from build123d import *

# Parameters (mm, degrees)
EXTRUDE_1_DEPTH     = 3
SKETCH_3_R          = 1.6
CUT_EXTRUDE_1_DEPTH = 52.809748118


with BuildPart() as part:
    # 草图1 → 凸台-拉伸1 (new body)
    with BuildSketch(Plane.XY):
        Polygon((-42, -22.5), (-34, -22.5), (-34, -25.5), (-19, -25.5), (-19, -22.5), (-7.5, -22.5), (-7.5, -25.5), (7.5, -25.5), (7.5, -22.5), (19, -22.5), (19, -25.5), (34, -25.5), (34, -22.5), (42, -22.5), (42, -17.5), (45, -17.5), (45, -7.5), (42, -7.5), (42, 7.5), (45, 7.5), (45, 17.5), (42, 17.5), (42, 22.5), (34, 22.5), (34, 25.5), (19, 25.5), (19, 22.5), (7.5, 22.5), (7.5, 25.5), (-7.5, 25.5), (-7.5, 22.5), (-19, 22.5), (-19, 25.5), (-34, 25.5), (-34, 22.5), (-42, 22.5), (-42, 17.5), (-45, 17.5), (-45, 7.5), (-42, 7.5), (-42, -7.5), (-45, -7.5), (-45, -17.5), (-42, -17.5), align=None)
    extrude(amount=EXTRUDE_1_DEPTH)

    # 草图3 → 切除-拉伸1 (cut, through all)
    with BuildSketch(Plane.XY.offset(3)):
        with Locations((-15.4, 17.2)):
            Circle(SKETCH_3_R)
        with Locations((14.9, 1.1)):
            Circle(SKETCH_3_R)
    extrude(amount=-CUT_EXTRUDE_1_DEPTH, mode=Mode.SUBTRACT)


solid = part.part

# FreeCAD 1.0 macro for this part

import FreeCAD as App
import Part
import Sketcher
from FreeCAD import Vector


def add_polygon(sketch, points):
    """Adds a closed chain of lines whose ends are joined by coincident constraints."""
    first, n = sketch.GeometryCount, len(points)
    for a, b in zip(points, points[1:] + points[:1]):
        sketch.addGeometry(Part.LineSegment(App.Vector(*a, 0), App.Vector(*b, 0)), False)
    for i in range(n):
        sketch.addConstraint(Sketcher.Constraint("Coincident", first + i, 2, first + (i + 1) % n, 1))

doc = App.newDocument("Part")
body = doc.addObject("PartDesign::Body", "Body")

# Sketch on XY plane
sketch1 = body.newObject("Sketcher::SketchObject", "Sketch")
sketch1.AttachmentSupport = (doc.getObject("XY_Plane"), [""])
sketch1.MapMode = "FlatFace"
add_polygon(sketch1, [(-42, -22.5), (-34, -22.5), (-34, -25.5), (-19, -25.5), (-19, -22.5), (-7.5, -22.5), (-7.5, -25.5), (7.5, -25.5), (7.5, -22.5), (19, -22.5), (19, -25.5), (34, -25.5), (34, -22.5), (42, -22.5), (42, -17.5), (45, -17.5), (45, -7.5), (42, -7.5), (42, 7.5), (45, 7.5), (45, 17.5), (42, 17.5), (42, 22.5), (34, 22.5), (34, 25.5), (19, 25.5), (19, 22.5), (7.5, 22.5), (7.5, 25.5), (-7.5, 25.5), (-7.5, 22.5), (-19, 22.5), (-19, 25.5), (-34, 25.5), (-34, 22.5), (-42, 22.5), (-42, 17.5), (-45, 17.5), (-45, 7.5), (-42, 7.5), (-42, -7.5), (-45, -7.5), (-45, -17.5), (-42, -17.5)])  # lines 0-43
sketch1.addConstraint([
    Sketcher.Constraint("Horizontal", 0),
    Sketcher.Constraint("Vertical", 1),
    Sketcher.Constraint("Horizontal", 2),
    Sketcher.Constraint("Vertical", 3),
    Sketcher.Constraint("Horizontal", 4),
    Sketcher.Constraint("Vertical", 5),
    Sketcher.Constraint("Horizontal", 6),
    Sketcher.Constraint("Vertical", 7),
    Sketcher.Constraint("Horizontal", 8),
    Sketcher.Constraint("Vertical", 9),
    Sketcher.Constraint("Horizontal", 10),
    Sketcher.Constraint("Vertical", 11),
    Sketcher.Constraint("Horizontal", 12),
    Sketcher.Constraint("Vertical", 13),
    Sketcher.Constraint("Horizontal", 14),
    Sketcher.Constraint("Vertical", 15),
    Sketcher.Constraint("Horizontal", 16),
    Sketcher.Constraint("Vertical", 17),
    Sketcher.Constraint("Horizontal", 18),
    Sketcher.Constraint("Vertical", 19),
    Sketcher.Constraint("Horizontal", 20),
    Sketcher.Constraint("Vertical", 21),
    Sketcher.Constraint("Horizontal", 22),
    Sketcher.Constraint("Vertical", 23),
    Sketcher.Constraint("Horizontal", 24),
    Sketcher.Constraint("Vertical", 25),
    Sketcher.Constraint("Horizontal", 26),
    Sketcher.Constraint("Vertical", 27),
    Sketcher.Constraint("Horizontal", 28),
    Sketcher.Constraint("Vertical", 29),
    Sketcher.Constraint("Horizontal", 30),
    Sketcher.Constraint("Vertical", 31),
    Sketcher.Constraint("Horizontal", 32),
    Sketcher.Constraint("Vertical", 33),
    Sketcher.Constraint("Horizontal", 34),
    Sketcher.Constraint("Vertical", 35),
    Sketcher.Constraint("Horizontal", 36),
    Sketcher.Constraint("Vertical", 37),
    Sketcher.Constraint("Horizontal", 38),
    Sketcher.Constraint("Vertical", 39),
    Sketcher.Constraint("Horizontal", 40),
    Sketcher.Constraint("Vertical", 41),
    Sketcher.Constraint("Horizontal", 42),
    Sketcher.Constraint("Vertical", 43),
    Sketcher.Constraint("Symmetric", 0, 2, 22, 2, -1, 1),
    Sketcher.Constraint("Symmetric", 2, 2, 24, 2, -1, 1),
    Sketcher.Constraint("Symmetric", 4, 2, 26, 2, -1, 1),
    Sketcher.Constraint("Symmetric", 6, 2, 28, 2, -1, 1),
    Sketcher.Constraint("Symmetric", 8, 2, 30, 2, -1, 1),
    Sketcher.Constraint("Symmetric", 10, 2, 32, 2, -1, 1),
    Sketcher.Constraint("Symmetric", 12, 2, 34, 2, -1, 1),
    Sketcher.Constraint("Symmetric", 14, 2, 36, 2, -1, 1),
    Sketcher.Constraint("Symmetric", 16, 2, 38, 2, -1, 1),
    Sketcher.Constraint("Symmetric", 18, 2, 40, 2, -1, 1),
    Sketcher.Constraint("Symmetric", 20, 2, 42, 2, -1, 1),
    Sketcher.Constraint("Symmetric", 4, 2, 7, 2, -2),
    Sketcher.Constraint("Symmetric", 2, 2, 9, 2, -2),
    Sketcher.Constraint("Symmetric", 0, 2, 11, 2, -2),
    Sketcher.Constraint("Symmetric", 20, 2, 35, 2, -2),
    Sketcher.Constraint("Symmetric", 18, 2, 37, 2, -2),
    Sketcher.Constraint("Horizontal", 0, 2, 3, 2),
    Sketcher.Constraint("Horizontal", 2, 2, 5, 2),
    Sketcher.Constraint("Vertical", 13, 2, 16, 2),
    Sketcher.Constraint("Equal", 2, 6),
    Sketcher.Constraint("Equal", 42, 1),
    Sketcher.Constraint("Equal", 32, 17),
    Sketcher.Constraint("DistanceX", 0, 1, 0, 2, 8.0),
    Sketcher.Constraint("DistanceX", 2, 1, 2, 2, 15.0),
    Sketcher.Constraint("DistanceX", 14, 1, 14, 2, 3.0),
    Sketcher.Constraint("DistanceY", 13, 1, 13, 2, 5.0),
    Sketcher.Constraint("DistanceY", 15, 1, 15, 2, 10.0),
    Sketcher.Constraint("DistanceX", 4, 1, 4, 2, 11.5),
])
pad1 = body.newObject("PartDesign::Pad", "Pad")
pad1.Profile = sketch1
pad1.Length = 3

# Sketch on XY plane
sketch2 = body.newObject("Sketcher::SketchObject", "Sketch001")
sketch2.AttachmentSupport = (doc.getObject("XY_Plane"), [""])
sketch2.MapMode = "FlatFace"
sketch2.AttachmentOffset = App.Placement(Vector(0, 0, 3), App.Rotation())
sketch2.addGeometry([
    Part.Circle(Vector(-15.4, 17.2, 0), Vector(0, 0, 1), 1.6),
    Part.Circle(Vector(14.9, 1.1, 0), Vector(0, 0, 1), 1.6),
], False)
sketch2.addConstraint([
    Sketcher.Constraint("Equal", 0, 1),
    Sketcher.Constraint("Diameter", 0, 3.2),
    Sketcher.Constraint("DistanceX", 0, 3, -1, 1, 15.4),
    Sketcher.Constraint("DistanceY", -1, 1, 0, 3, 17.2),
    Sketcher.Constraint("DistanceX", -1, 1, 1, 3, 14.9),
    Sketcher.Constraint("DistanceY", -1, 1, 1, 3, 1.1),
])
pocket1 = body.newObject("PartDesign::Pocket", "Pocket")
pocket1.Profile = sketch2
pocket1.Type = "ThroughAll"

doc.recompute()
